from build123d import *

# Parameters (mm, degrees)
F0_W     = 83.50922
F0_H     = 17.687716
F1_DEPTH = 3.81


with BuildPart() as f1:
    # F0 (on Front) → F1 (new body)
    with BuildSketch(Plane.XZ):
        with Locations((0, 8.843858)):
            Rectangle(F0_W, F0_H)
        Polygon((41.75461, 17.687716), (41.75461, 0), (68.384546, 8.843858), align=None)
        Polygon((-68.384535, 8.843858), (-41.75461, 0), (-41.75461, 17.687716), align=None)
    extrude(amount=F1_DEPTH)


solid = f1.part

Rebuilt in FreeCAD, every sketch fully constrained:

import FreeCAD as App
import Part
import Sketcher

V = App.Vector
Q = App.Units.Quantity

doc = App.newDocument("Part")
body = doc.addObject("PartDesign::Body", "Body")

sketch1 = body.newObject("Sketcher::SketchObject", "Sketch")
sketch1.AttachmentSupport = (doc.getObject("XZ_Plane"), [""])
sketch1.MapMode = "FlatFace"
sketch1.addGeometry([
    Part.LineSegment(V(-42, 0, 0), V(42, 0, 0)),
    Part.LineSegment(V(42, 0, 0), V(68, 9, 0)),
    Part.LineSegment(V(68, 9, 0), V(42, 18, 0)),
    Part.LineSegment(V(42, 18, 0), V(-42, 18, 0)),
    Part.LineSegment(V(-42, 18, 0), V(-68, 9, 0)),
    Part.LineSegment(V(-68, 9, 0), V(-42, 0, 0)),
], False)
sketch1.addConstraint([
    Sketcher.Constraint("Coincident", 0, 2, 1, 1),
    Sketcher.Constraint("Coincident", 1, 2, 2, 1),
    Sketcher.Constraint("Coincident", 2, 2, 3, 1),
    Sketcher.Constraint("Coincident", 3, 2, 4, 1),
    Sketcher.Constraint("Coincident", 4, 2, 5, 1),
    Sketcher.Constraint("Coincident", 5, 2, 0, 1),
    Sketcher.Constraint("Horizontal", 0),
    Sketcher.Constraint("Horizontal", 3),
    Sketcher.Constraint("Symmetric", 0, 2, 5, 2, -1, 1),
    Sketcher.Constraint("Parallel", 1, 4),
    Sketcher.Constraint("Parallel", 2, 5),
    Sketcher.Constraint("Horizontal", 1, 2, 4, 2),
    Sketcher.Constraint("Vertical", 0, 2, 2, 2),
    Sketcher.Constraint("Vertical", 3, 2, 5, 2),
    Sketcher.Constraint("DistanceX", 0, 1, 0, 2, 83.50922),
    Sketcher.Constraint("DistanceY", -1, 1, 1, 2, 8.843858),
    Sketcher.Constraint("DistanceX", 4, 2, 1, 2, 136.769081),
])
pad1 = body.newObject("PartDesign::Pad", "Pad")
pad1.Profile = sketch1
pad1.Length = Q("0.15 in")

doc.recompute()
